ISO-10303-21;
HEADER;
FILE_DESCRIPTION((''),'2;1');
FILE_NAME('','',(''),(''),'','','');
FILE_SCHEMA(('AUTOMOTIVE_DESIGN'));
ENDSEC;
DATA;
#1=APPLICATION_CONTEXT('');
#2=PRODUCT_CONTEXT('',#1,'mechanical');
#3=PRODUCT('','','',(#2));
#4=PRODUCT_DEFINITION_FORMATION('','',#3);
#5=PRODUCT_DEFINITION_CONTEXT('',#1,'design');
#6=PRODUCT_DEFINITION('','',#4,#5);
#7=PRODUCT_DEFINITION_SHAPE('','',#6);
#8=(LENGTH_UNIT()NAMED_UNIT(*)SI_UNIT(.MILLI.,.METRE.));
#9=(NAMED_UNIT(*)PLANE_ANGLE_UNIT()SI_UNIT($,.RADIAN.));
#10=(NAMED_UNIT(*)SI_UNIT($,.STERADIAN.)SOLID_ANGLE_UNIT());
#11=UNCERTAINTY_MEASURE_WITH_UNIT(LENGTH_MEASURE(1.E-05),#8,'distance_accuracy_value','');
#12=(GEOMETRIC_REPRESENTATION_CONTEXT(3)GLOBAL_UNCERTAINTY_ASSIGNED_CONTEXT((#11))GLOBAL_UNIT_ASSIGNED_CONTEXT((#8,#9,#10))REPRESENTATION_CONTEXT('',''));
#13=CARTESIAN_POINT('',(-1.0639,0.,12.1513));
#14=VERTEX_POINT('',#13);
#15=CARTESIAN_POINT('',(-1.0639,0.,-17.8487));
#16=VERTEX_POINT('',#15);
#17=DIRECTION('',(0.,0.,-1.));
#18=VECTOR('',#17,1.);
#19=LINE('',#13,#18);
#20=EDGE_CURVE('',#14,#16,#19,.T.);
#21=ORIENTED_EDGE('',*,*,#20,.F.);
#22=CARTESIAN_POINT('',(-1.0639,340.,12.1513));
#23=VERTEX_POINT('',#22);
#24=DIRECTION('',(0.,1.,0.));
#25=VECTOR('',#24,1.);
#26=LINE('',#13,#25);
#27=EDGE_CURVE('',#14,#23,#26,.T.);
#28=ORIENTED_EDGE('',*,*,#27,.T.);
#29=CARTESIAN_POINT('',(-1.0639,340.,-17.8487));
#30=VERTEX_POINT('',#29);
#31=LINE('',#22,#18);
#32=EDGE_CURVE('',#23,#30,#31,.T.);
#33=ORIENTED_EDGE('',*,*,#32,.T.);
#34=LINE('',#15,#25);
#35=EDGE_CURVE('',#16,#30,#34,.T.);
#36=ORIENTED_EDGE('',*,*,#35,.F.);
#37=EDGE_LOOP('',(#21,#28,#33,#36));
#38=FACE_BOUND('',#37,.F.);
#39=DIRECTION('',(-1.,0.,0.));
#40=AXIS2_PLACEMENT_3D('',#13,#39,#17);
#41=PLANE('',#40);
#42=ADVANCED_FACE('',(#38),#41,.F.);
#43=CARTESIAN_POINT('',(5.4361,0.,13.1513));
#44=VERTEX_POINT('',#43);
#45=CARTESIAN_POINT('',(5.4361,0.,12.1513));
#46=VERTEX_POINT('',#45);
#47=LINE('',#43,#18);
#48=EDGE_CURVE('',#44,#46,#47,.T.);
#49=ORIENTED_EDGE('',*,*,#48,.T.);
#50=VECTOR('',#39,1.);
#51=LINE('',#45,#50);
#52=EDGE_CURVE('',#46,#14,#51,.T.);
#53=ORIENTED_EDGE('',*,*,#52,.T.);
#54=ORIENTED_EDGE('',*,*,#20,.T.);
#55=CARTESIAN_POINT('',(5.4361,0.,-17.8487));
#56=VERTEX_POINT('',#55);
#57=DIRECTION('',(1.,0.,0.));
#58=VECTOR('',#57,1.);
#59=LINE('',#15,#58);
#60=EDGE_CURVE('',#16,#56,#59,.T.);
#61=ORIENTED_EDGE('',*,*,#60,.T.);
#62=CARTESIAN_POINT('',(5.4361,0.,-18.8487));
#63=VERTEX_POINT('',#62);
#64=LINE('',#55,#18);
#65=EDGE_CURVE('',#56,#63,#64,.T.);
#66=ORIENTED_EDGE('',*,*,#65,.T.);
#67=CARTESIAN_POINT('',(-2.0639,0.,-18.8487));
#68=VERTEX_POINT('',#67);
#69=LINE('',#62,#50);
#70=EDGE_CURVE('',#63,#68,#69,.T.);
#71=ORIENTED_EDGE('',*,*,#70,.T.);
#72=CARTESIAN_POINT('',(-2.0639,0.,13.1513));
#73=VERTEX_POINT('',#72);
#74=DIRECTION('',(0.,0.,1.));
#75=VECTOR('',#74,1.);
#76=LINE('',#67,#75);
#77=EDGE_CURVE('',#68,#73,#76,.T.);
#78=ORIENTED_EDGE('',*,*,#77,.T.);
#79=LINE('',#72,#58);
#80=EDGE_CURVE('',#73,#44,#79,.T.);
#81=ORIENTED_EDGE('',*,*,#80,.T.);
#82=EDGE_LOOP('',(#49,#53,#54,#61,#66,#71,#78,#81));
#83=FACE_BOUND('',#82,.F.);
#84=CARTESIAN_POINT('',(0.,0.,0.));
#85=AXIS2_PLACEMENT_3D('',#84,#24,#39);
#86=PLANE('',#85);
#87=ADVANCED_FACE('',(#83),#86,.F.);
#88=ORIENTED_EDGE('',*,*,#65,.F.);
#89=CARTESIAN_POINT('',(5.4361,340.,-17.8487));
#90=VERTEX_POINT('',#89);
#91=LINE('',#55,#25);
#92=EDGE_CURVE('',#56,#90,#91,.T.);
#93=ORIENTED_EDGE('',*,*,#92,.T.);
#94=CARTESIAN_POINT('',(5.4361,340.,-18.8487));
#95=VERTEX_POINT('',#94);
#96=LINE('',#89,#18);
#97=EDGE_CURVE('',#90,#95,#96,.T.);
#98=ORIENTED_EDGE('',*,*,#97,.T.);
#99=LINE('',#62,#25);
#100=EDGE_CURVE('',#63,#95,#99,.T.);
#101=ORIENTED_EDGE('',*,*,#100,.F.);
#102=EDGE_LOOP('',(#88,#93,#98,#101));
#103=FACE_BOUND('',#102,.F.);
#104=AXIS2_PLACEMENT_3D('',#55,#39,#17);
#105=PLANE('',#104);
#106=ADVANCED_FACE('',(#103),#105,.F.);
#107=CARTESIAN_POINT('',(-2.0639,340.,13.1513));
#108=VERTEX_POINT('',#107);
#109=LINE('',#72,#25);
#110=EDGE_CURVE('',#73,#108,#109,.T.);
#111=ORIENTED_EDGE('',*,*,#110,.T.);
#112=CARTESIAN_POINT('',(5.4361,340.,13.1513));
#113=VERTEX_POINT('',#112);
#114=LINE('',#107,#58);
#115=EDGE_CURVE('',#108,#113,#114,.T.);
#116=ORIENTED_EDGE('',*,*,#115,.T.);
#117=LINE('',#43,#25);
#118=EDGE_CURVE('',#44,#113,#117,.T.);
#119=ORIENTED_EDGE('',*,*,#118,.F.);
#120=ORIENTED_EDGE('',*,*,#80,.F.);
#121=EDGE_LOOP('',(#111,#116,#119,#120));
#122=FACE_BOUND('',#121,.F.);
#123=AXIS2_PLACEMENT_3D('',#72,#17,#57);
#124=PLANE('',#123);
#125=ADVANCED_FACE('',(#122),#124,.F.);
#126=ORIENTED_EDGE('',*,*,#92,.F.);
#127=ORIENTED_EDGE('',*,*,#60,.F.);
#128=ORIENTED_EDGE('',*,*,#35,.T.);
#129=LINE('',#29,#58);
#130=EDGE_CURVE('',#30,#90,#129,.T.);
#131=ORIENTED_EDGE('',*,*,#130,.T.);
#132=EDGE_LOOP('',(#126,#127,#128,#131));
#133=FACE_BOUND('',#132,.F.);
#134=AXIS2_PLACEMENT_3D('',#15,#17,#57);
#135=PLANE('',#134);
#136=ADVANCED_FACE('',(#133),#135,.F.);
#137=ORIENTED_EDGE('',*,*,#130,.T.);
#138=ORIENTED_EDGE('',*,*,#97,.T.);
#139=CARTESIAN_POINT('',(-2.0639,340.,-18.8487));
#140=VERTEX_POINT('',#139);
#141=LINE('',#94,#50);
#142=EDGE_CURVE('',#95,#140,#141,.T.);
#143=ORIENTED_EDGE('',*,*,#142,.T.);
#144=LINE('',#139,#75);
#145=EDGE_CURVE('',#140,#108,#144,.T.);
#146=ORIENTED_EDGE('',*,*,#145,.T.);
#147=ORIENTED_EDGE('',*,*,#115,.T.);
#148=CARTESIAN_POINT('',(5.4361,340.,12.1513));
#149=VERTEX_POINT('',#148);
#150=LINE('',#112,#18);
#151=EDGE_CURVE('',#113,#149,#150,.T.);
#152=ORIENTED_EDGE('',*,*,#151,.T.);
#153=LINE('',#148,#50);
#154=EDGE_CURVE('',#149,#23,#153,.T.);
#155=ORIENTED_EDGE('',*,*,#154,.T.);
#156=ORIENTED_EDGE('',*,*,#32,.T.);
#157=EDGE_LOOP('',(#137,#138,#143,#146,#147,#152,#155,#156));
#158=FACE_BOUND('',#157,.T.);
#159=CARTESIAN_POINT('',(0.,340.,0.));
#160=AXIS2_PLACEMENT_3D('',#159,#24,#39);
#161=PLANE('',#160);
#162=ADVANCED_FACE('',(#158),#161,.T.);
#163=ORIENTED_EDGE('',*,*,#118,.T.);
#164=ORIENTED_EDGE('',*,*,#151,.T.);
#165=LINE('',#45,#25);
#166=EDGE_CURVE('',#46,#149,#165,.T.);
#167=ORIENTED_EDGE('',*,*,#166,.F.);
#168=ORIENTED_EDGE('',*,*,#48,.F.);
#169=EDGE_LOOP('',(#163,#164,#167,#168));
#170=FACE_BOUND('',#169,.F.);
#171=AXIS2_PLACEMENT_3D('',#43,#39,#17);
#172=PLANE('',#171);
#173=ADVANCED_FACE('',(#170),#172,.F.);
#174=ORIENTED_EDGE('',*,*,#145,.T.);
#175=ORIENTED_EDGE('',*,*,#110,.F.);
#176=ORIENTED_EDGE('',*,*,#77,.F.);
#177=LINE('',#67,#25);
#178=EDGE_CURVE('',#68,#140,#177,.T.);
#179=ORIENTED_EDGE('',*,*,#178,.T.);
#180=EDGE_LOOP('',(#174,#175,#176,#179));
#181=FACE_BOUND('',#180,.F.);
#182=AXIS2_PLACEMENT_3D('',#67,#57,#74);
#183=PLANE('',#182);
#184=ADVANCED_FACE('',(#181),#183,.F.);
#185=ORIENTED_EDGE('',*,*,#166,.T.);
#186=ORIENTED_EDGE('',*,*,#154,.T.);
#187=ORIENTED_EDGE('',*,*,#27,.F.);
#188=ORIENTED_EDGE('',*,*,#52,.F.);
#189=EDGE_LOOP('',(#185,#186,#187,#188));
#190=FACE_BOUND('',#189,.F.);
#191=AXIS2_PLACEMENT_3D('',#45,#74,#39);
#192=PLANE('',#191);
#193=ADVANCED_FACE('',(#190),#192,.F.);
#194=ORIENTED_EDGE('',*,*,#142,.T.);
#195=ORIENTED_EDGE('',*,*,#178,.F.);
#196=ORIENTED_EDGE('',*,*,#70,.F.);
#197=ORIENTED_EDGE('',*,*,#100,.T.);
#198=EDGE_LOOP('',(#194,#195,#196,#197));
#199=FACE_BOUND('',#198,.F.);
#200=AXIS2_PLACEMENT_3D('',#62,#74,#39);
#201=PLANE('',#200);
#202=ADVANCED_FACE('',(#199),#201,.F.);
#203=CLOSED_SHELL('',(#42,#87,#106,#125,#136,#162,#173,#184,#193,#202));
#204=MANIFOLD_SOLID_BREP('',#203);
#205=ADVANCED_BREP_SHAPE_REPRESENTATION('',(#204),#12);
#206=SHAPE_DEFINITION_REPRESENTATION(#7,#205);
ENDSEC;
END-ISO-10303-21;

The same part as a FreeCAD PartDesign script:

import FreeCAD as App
import Part
import Sketcher

V = App.Vector


def add_polygon(sketch, points):
    """Adds a closed chain of lines whose ends are joined by coincident constraints."""
    first, n = sketch.GeometryCount, len(points)
    for a, b in zip(points, points[1:] + points[:1]):
        sketch.addGeometry(Part.LineSegment(App.Vector(*a, 0), App.Vector(*b, 0)), False)
    for i in range(n):
        sketch.addConstraint(Sketcher.Constraint("Coincident", first + i, 2, first + (i + 1) % n, 1))

doc = App.newDocument("Part")
body = doc.addObject("PartDesign::Body", "Body")

# Sketch on XZ plane
sketch1 = body.newObject("Sketcher::SketchObject", "Sketch")
sketch1.AttachmentSupport = (doc.getObject("XZ_Plane"), [""])
sketch1.MapMode = "FlatFace"
add_polygon(sketch1, [(5.4361, 13.1513), (5.4361, 12.1513), (-1.0639, 12.1513), (-1.0639, -17.8487), (5.4361, -17.8487), (5.4361, -18.8487), (-2.0639, -18.8487), (-2.0639, 13.1513)])  # lines 0-7
sketch1.addConstraint(Sketcher.Constraint("Vertical", 0))
sketch1.addConstraint(Sketcher.Constraint("Horizontal", 1))
sketch1.addConstraint(Sketcher.Constraint("Vertical", 2))
sketch1.addConstraint(Sketcher.Constraint("Horizontal", 3))
sketch1.addConstraint(Sketcher.Constraint("Vertical", 4))
sketch1.addConstraint(Sketcher.Constraint("Horizontal", 5))
sketch1.addConstraint(Sketcher.Constraint("Vertical", 6))
sketch1.addConstraint(Sketcher.Constraint("Horizontal", 7))
sketch1.addConstraint(Sketcher.Constraint("Vertical", 0, 2, 3, 2))
sketch1.addConstraint(Sketcher.Constraint("Equal", 0, 4))
sketch1.addConstraint(Sketcher.Constraint("DistanceY", 0, 2, 0, 1, 1.0))
sketch1.addConstraint(Sketcher.Constraint("DistanceY", 2, 2, 2, 1, 30.0))
sketch1.addConstraint(Sketcher.Constraint("DistanceX", 1, 2, 1, 1, 6.5))
sketch1.addConstraint(Sketcher.Constraint("DistanceX", 5, 2, 5, 1, 7.5))
sketch1.addConstraint(Sketcher.Constraint("DistanceX", -1, 1, 0, 2, 5.436))
sketch1.addConstraint(Sketcher.Constraint("DistanceY", -1, 1, 0, 2, 12.1513))
pad1 = body.newObject("PartDesign::Pad", "Pad")
pad1.Profile = sketch1
pad1.Length = 340
pad1.Reversed = True

doc.recompute()
